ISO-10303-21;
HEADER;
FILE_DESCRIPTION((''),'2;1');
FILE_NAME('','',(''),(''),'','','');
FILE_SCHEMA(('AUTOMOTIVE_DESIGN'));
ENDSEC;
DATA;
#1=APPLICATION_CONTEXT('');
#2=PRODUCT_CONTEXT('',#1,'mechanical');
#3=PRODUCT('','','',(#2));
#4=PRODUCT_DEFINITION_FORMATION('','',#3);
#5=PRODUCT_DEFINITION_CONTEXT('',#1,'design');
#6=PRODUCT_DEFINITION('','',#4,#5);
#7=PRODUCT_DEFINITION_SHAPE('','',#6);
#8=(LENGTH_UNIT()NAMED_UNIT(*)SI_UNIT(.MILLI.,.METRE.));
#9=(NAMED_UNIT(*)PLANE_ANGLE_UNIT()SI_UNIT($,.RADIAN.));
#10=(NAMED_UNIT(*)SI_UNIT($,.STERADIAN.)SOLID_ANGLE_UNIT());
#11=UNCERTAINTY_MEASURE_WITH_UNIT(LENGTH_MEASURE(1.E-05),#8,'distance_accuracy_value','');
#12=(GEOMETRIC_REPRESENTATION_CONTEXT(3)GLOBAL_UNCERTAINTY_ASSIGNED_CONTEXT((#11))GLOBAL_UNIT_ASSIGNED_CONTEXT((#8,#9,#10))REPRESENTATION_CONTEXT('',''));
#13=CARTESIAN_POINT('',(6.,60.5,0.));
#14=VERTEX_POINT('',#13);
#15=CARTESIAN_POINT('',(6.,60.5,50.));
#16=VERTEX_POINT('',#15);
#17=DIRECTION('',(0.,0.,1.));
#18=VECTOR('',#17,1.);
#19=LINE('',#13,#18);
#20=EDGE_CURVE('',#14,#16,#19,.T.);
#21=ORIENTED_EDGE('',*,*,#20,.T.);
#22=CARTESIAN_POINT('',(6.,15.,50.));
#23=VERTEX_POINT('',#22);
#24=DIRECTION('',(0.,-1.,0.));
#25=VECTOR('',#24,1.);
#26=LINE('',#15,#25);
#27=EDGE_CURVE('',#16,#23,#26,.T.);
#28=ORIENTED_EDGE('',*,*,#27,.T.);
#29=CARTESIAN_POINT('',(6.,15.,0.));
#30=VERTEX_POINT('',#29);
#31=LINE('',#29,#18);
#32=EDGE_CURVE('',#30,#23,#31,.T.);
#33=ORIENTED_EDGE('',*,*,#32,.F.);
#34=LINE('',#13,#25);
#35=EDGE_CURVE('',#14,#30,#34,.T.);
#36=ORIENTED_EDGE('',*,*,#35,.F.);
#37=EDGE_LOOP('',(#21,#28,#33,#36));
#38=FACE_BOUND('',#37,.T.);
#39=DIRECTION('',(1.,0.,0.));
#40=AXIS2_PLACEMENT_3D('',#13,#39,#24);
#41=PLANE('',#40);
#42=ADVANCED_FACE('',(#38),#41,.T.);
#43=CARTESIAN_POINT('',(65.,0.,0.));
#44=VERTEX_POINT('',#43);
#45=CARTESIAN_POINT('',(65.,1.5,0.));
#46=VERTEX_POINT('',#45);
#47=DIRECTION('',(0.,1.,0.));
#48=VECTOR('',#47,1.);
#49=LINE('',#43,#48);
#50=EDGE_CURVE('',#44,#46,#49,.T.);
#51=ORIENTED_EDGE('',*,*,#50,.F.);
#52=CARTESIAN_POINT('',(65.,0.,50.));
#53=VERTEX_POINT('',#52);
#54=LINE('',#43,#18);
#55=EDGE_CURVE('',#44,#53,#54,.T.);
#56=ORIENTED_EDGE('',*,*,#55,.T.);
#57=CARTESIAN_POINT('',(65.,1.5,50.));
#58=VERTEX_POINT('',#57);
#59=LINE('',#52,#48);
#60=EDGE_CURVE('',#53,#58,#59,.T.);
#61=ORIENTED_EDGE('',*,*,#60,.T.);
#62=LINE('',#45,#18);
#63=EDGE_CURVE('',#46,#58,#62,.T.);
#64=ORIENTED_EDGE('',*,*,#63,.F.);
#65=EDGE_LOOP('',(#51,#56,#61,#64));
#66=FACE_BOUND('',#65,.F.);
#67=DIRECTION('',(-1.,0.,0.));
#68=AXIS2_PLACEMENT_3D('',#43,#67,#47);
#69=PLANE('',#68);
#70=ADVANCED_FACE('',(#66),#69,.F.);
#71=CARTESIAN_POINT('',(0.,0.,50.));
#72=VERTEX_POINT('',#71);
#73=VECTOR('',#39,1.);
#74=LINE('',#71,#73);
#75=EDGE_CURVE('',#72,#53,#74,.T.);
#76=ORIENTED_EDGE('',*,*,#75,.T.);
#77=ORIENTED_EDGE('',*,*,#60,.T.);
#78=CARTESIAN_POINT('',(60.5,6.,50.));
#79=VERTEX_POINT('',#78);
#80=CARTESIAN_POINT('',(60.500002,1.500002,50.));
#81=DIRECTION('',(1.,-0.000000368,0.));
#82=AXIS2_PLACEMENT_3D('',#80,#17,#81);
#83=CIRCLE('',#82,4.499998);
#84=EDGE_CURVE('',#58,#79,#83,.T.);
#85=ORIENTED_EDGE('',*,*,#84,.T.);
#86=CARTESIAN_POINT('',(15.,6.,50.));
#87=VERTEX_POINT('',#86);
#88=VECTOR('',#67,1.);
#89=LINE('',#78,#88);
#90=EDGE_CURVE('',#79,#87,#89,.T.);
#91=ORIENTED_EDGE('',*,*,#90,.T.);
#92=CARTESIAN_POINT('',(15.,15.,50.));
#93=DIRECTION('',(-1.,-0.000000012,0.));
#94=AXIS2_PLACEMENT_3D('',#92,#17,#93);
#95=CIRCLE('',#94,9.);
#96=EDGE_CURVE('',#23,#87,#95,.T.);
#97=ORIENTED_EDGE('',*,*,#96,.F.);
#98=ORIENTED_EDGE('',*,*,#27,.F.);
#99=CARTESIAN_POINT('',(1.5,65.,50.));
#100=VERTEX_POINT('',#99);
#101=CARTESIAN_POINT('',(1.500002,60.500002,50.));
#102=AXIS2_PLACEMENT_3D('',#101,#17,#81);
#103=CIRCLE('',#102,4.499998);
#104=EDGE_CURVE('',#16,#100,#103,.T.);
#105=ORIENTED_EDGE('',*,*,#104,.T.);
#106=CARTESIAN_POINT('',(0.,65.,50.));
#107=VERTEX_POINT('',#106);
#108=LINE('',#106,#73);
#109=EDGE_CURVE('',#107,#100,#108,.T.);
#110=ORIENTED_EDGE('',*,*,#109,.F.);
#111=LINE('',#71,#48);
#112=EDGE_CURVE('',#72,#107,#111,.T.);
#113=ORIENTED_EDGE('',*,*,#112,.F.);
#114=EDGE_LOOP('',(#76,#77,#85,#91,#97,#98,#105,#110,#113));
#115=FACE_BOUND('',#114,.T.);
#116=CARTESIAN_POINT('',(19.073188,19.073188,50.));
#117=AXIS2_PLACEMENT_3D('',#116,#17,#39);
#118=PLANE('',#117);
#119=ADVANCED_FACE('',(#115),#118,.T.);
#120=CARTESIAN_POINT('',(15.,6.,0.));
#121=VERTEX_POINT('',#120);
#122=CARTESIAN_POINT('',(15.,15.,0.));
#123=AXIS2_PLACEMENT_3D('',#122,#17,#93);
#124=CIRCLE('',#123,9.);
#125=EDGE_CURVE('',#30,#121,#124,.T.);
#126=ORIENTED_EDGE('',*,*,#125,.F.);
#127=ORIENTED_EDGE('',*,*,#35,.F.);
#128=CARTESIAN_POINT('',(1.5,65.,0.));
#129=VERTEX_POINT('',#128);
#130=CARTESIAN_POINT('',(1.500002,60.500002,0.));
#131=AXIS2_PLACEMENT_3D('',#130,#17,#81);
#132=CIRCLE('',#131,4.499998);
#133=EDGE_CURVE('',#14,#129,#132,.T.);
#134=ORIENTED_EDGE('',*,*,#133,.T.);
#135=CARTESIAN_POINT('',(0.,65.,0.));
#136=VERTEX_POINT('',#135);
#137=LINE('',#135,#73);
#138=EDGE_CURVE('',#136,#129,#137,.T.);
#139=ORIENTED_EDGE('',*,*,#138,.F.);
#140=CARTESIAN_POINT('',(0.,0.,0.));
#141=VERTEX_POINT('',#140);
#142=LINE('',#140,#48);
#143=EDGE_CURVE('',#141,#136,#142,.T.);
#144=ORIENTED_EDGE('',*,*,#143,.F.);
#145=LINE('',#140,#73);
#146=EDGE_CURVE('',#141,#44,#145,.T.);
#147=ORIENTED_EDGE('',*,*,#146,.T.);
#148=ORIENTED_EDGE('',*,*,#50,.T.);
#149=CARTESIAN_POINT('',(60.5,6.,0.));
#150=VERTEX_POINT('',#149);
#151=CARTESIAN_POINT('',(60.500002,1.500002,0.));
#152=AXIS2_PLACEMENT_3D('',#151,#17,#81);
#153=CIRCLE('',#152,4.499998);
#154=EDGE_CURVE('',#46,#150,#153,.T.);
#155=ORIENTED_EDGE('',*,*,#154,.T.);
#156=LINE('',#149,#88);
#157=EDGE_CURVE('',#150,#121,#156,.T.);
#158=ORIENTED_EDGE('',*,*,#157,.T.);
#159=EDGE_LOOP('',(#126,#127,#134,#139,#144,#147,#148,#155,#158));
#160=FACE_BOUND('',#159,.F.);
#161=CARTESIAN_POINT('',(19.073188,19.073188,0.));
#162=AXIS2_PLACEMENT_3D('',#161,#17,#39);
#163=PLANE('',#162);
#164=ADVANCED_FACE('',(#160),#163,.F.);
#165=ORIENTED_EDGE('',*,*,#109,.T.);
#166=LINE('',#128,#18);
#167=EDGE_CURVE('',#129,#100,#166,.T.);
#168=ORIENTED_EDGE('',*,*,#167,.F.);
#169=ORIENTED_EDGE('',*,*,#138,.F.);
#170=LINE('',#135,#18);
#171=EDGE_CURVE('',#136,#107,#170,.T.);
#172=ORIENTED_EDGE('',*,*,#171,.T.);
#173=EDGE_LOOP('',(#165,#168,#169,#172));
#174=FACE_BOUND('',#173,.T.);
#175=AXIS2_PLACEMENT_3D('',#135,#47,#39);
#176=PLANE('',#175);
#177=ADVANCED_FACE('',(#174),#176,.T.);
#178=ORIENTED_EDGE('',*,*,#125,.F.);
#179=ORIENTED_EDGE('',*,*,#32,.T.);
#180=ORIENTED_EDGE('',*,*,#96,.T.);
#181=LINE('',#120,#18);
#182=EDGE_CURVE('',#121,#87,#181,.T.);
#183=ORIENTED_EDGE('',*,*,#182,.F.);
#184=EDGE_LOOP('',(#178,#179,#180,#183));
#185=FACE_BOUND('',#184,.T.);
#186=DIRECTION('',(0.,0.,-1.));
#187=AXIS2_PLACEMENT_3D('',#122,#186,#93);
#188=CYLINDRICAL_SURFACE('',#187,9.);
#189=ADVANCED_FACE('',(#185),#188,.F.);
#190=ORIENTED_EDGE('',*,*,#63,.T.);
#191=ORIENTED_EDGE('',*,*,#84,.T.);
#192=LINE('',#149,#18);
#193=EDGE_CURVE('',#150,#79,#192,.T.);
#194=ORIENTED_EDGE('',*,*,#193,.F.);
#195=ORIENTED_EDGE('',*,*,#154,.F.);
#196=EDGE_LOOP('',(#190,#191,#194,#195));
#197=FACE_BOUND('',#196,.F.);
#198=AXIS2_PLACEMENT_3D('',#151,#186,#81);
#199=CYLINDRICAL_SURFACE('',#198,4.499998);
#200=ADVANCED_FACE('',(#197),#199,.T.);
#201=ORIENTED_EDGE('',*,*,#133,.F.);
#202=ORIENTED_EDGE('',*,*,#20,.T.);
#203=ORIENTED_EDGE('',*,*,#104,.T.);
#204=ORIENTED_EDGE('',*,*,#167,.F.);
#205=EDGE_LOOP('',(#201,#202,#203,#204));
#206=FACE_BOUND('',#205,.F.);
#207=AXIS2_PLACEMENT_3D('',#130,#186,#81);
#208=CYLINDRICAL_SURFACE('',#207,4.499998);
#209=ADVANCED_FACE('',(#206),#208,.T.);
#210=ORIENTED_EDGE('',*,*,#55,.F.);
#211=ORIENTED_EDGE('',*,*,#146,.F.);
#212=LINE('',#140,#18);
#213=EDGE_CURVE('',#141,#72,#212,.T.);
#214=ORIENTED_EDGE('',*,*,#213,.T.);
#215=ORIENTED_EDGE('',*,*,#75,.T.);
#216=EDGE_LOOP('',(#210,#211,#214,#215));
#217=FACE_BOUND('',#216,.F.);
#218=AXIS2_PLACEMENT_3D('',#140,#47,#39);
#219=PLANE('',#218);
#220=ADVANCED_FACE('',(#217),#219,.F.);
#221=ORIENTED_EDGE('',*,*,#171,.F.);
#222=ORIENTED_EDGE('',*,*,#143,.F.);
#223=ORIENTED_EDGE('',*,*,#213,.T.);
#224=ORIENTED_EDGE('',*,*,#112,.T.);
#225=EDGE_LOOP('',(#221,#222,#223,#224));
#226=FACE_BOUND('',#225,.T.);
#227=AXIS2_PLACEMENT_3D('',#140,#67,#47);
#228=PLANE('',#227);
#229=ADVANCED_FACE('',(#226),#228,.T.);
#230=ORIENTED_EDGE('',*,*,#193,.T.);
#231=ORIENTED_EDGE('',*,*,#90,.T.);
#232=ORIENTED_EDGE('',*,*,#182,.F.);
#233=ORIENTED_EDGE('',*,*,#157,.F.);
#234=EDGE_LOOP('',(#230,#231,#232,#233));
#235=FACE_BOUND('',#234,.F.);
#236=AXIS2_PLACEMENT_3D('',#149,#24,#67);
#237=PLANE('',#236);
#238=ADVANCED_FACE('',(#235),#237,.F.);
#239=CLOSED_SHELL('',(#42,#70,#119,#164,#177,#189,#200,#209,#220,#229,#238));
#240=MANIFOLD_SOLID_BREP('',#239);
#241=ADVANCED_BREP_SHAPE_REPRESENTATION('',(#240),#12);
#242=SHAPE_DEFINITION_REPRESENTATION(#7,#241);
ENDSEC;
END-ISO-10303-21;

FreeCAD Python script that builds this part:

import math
import FreeCAD as App
import Part
import Sketcher
Q = App.Units.Quantity

doc = App.newDocument("Part")
body = doc.addObject("PartDesign::Body", "Body")

sketch1 = body.newObject("Sketcher::SketchObject", "Sketch")
sketch1.AttachmentSupport = (doc.getObject("XY_Plane"), [""])
sketch1.MapMode = "FlatFace"
sketch1.addGeometry(Part.LineSegment(App.Vector(0, 0, 0), App.Vector(65, 0, 0)), False)
sketch1.addGeometry(Part.LineSegment(App.Vector(65, 0, 0), App.Vector(65, 1.5, 0)), False)
sketch1.addGeometry(Part.ArcOfCircle(Part.Circle(App.Vector(60.500002, 1.500002, 0), App.Vector(0, 0, 1), 4.499998), math.radians(-0.000021), math.radians(90.000021)), False)
sketch1.addGeometry(Part.LineSegment(App.Vector(60.5, 6, 0), App.Vector(15, 6, 0)), False)
sketch1.addGeometry(Part.ArcOfCircle(Part.Circle(App.Vector(15, 15, 0), App.Vector(0, 0, 1), 9), math.radians(-179.999999), math.radians(-90.000001)), False)
sketch1.addGeometry(Part.LineSegment(App.Vector(6, 15, 0), App.Vector(6, 60.5, 0)), False)
sketch1.addGeometry(Part.ArcOfCircle(Part.Circle(App.Vector(1.500002, 60.500002, 0), App.Vector(0, 0, 1), 4.499998), math.radians(-0.000021), math.radians(90.000021)), False)
sketch1.addGeometry(Part.LineSegment(App.Vector(1.5, 65, 0), App.Vector(0, 65, 0)), False)
sketch1.addGeometry(Part.LineSegment(App.Vector(0, 65, 0), App.Vector(0, 0, 0)), False)
sketch1.addConstraint(Sketcher.Constraint("Coincident", 0, 2, 1, 1))
sketch1.addConstraint(Sketcher.Constraint("Tangent", 1, 2, 2, 1))
sketch1.addConstraint(Sketcher.Constraint("Tangent", 2, 2, 3, 1))
sketch1.addConstraint(Sketcher.Constraint("Tangent", 3, 2, 4, 2))
sketch1.addConstraint(Sketcher.Constraint("Tangent", 4, 1, 5, 1))
sketch1.addConstraint(Sketcher.Constraint("Tangent", 5, 2, 6, 1))
sketch1.addConstraint(Sketcher.Constraint("Tangent", 6, 2, 7, 1))
sketch1.addConstraint(Sketcher.Constraint("Coincident", 7, 2, 8, 1))
sketch1.addConstraint(Sketcher.Constraint("Coincident", 8, 2, 0, 1))
sketch1.addConstraint(Sketcher.Constraint("Horizontal", 0))
sketch1.addConstraint(Sketcher.Constraint("Vertical", 1))
sketch1.addConstraint(Sketcher.Constraint("Horizontal", 3))
sketch1.addConstraint(Sketcher.Constraint("Vertical", 5))
sketch1.addConstraint(Sketcher.Constraint("Horizontal", 7))
sketch1.addConstraint(Sketcher.Constraint("Vertical", 8))
sketch1.addConstraint(Sketcher.Constraint("Coincident", 8, 2, -1, 1))
sketch1.addConstraint(Sketcher.Constraint("Equal", 2, 6))
sketch1.addConstraint(Sketcher.Constraint("Equal", 7, 1))
sketch1.addConstraint(Sketcher.Constraint("Equal", 3, 5))
sketch1.addConstraint(Sketcher.Constraint("Radius", 4, Q("9 mm")))
sketch1.addConstraint(Sketcher.Constraint("Radius", 2, Q("4.499998 mm")))
sketch1.addConstraint(Sketcher.Constraint("DistanceX", 0, 1, 0, 2, Q("65 mm")))
sketch1.addConstraint(Sketcher.Constraint("DistanceX", 3, 2, 3, 1, Q("45.5 mm")))
pad1 = body.newObject("PartDesign::Pad", "Pad")
pad1.Profile = sketch1
pad1.Length = 50

doc.recompute()
